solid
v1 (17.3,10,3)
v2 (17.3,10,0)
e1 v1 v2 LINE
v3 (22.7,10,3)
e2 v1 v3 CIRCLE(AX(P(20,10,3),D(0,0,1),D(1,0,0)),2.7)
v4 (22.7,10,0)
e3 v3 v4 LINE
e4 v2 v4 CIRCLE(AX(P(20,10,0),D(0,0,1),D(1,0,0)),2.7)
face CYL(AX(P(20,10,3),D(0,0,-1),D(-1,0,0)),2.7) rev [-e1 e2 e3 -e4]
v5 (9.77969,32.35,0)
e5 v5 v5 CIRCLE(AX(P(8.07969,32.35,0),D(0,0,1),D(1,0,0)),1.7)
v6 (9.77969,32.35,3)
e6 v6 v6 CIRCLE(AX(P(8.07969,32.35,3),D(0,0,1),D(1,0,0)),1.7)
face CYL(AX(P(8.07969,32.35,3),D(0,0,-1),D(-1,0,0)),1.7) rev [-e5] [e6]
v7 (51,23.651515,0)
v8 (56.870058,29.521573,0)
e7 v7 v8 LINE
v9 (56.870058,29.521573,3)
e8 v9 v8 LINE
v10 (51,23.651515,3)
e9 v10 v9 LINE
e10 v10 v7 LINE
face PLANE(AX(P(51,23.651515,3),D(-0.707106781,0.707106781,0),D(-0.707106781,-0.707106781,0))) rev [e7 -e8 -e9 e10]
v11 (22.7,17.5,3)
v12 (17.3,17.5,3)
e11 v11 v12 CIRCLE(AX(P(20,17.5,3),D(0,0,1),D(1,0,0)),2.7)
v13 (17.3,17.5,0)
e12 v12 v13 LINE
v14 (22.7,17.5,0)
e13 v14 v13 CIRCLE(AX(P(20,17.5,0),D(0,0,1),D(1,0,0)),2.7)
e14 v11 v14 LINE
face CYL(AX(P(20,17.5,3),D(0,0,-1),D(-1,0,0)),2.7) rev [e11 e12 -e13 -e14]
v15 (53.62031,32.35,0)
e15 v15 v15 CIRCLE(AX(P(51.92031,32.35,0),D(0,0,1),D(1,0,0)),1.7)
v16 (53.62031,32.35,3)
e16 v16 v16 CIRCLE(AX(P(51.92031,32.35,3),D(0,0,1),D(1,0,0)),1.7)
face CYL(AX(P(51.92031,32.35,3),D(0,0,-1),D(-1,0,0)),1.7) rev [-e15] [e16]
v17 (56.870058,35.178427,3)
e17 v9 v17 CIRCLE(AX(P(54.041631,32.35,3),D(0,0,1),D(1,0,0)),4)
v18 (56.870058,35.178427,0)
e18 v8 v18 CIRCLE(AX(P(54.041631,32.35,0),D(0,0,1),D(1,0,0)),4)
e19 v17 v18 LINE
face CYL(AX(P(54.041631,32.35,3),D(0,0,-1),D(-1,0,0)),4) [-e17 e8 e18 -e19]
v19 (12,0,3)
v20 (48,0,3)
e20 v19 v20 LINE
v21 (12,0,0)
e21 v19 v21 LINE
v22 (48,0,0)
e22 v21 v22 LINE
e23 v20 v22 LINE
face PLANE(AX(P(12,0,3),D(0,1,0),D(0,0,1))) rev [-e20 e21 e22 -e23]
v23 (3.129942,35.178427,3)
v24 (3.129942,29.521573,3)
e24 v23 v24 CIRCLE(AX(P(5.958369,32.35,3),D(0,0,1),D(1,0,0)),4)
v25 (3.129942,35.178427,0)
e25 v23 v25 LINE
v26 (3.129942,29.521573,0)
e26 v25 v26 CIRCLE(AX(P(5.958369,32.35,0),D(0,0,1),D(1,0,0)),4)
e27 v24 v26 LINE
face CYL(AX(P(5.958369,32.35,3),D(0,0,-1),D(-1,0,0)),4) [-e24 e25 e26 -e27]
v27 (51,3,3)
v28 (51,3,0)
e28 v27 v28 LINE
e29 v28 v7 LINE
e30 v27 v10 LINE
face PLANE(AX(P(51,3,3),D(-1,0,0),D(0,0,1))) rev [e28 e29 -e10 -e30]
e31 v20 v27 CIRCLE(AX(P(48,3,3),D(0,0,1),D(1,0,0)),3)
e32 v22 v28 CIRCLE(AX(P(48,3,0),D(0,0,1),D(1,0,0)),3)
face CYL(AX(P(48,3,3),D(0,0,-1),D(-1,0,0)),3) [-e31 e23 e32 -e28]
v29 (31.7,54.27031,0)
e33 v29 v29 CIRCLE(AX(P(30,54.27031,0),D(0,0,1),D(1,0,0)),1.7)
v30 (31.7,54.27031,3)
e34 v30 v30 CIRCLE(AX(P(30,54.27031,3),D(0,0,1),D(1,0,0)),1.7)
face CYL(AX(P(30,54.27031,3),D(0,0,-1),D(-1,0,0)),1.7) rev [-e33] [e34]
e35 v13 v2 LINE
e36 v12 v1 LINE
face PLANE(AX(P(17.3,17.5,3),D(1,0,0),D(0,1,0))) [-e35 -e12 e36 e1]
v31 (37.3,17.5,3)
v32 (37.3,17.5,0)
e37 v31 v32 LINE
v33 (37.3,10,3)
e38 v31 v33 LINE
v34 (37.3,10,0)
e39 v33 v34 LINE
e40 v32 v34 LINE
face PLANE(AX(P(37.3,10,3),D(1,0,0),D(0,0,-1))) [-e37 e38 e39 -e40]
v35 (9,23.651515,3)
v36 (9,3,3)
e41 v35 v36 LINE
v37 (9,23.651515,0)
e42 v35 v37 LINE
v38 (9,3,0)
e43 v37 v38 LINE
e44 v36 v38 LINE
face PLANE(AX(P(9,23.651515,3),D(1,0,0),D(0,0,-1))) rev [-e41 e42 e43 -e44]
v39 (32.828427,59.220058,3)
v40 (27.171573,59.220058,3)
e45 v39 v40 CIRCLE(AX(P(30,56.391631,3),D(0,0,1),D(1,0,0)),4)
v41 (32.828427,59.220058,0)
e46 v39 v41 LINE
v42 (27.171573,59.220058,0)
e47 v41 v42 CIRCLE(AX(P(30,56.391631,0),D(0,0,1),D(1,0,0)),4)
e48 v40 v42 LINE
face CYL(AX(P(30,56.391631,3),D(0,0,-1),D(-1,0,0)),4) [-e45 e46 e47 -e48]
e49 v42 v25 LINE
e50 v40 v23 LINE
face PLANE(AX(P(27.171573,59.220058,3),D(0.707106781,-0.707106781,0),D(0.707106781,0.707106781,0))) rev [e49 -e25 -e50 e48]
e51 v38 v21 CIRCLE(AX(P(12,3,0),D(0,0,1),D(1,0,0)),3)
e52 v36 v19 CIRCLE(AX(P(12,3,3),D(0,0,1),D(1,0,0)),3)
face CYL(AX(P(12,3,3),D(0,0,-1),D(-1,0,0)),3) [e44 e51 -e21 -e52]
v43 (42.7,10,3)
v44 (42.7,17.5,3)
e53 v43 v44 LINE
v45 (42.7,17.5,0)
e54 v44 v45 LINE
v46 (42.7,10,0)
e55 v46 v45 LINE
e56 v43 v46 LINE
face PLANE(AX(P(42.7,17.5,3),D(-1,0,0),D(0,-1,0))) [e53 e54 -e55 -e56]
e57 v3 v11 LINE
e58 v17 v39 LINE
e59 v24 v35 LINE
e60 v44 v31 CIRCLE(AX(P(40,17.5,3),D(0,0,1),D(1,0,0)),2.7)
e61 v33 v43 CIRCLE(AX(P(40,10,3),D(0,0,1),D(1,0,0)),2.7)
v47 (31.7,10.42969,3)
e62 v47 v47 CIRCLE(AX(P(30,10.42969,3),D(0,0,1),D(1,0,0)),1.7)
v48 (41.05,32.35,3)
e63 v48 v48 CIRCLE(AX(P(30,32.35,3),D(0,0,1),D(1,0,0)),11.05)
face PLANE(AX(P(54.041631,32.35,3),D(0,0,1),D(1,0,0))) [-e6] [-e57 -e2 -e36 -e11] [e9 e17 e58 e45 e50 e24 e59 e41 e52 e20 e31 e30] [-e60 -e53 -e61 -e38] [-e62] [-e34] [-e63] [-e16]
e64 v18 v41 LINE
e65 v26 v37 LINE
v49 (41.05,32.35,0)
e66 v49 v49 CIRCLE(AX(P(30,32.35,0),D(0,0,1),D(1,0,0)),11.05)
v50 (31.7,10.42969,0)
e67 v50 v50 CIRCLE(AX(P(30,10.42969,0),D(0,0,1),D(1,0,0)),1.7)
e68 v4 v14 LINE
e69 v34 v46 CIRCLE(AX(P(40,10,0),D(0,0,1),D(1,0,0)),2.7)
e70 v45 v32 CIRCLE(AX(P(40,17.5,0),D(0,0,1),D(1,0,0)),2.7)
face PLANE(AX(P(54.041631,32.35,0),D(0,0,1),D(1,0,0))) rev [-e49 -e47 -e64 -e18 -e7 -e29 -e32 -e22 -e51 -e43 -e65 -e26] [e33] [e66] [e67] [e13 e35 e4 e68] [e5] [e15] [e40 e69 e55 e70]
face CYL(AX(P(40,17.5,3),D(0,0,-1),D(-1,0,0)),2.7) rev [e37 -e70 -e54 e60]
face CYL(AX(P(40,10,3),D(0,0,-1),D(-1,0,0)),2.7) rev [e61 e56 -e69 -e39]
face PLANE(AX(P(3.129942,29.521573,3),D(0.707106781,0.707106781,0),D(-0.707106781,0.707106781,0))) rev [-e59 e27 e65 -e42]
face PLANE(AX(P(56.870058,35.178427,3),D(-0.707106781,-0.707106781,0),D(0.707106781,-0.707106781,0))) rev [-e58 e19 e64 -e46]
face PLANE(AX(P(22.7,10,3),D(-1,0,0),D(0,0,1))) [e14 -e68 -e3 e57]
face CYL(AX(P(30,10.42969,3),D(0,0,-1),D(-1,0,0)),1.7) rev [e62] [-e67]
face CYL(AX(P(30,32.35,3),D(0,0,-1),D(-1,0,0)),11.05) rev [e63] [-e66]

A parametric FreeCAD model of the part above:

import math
import FreeCAD as App
import Part
import Sketcher
from FreeCAD import Vector
Q = App.Units.Quantity

doc = App.newDocument("Part")
params = doc.addObject("Spreadsheet::Sheet", "Params")
for row, (alias, value) in enumerate([
    ("sketch1_radius", "4 mm"),
    ("sketch1_radius2", "3 mm"),
    ("sketch1_diameter", "3.4 mm"),
    ("sketch1_diameter2", "22.1 mm"),
    ("sketch1_radius3", "2.7 mm"),
    ("pad1_length", "3 mm"),
], start=1):
    params.set(f"A{row}", alias)
    params.set(f"B{row}", "=" + value)
    params.setAlias(f"B{row}", alias)

body = doc.addObject("PartDesign::Body", "Body")

sketch1 = body.newObject("Sketcher::SketchObject", "Sketch")
sketch1.AttachmentSupport = (doc.getObject("XY_Plane"), [""])
sketch1.MapMode = "FlatFace"
sketch1.addGeometry([
    Part.LineSegment(Vector(51, 3, 0), Vector(51, 23.7, 0)),
    Part.LineSegment(Vector(51, 23.7, 0), Vector(56.9, 29.5, 0)),
    Part.ArcOfCircle(Part.Circle(Vector(54, 32.4, 0), Vector(0, 0, 1), 4), math.radians(-45), math.radians(45)),
    Part.LineSegment(Vector(56.9, 35.2, 0), Vector(32.8, 59.2, 0)),
    Part.ArcOfCircle(Part.Circle(Vector(30, 56.4, 0), Vector(0, 0, 1), 4), math.radians(45), math.radians(135)),
    Part.LineSegment(Vector(27.2, 59.2, 0), Vector(3.1, 35.2, 0)),
    Part.ArcOfCircle(Part.Circle(Vector(6, 32.4, 0), Vector(0, 0, 1), 4), math.radians(135), math.radians(225)),
    Part.LineSegment(Vector(3.1, 29.5, 0), Vector(9, 23.7, 0)),
    Part.LineSegment(Vector(9, 23.7, 0), Vector(9, 3, 0)),
    Part.ArcOfCircle(Part.Circle(Vector(12, 3, 0), Vector(0, 0, 1), 3), math.radians(180), math.radians(270)),
    Part.LineSegment(Vector(12, 0, 0), Vector(48, 0, 0)),
    Part.ArcOfCircle(Part.Circle(Vector(48, 3, 0), Vector(0, 0, 1), 3), math.radians(-90), math.radians(0)),
    Part.Circle(Vector(30, 10.4, 0), Vector(0, 0, 1), 1.7),
    Part.LineSegment(Vector(22.7, 17.5, 0), Vector(22.7, 10, 0)),
    Part.ArcOfCircle(Part.Circle(Vector(20, 10, 0), Vector(0, 0, 1), 2.7), math.radians(180), math.radians(360)),
    Part.LineSegment(Vector(17.3, 10, 0), Vector(17.3, 17.5, 0)),
    Part.ArcOfCircle(Part.Circle(Vector(20, 17.5, 0), Vector(0, 0, 1), 2.7), math.radians(0), math.radians(180)),
    Part.ArcOfCircle(Part.Circle(Vector(40, 10, 0), Vector(0, 0, 1), 2.7), math.radians(180), math.radians(360)),
    Part.LineSegment(Vector(37.3, 10, 0), Vector(37.3, 17.5, 0)),
    Part.ArcOfCircle(Part.Circle(Vector(40, 17.5, 0), Vector(0, 0, 1), 2.7), math.radians(0), math.radians(180)),
    Part.LineSegment(Vector(42.7, 17.5, 0), Vector(42.7, 10, 0)),
    Part.Circle(Vector(8.1, 32.4, 0), Vector(0, 0, 1), 1.7),
    Part.Circle(Vector(30, 32.4, 0), Vector(0, 0, 1), 11.1),
    Part.Circle(Vector(30, 54.3, 0), Vector(0, 0, 1), 1.7),
    Part.Circle(Vector(51.9, 32.4, 0), Vector(0, 0, 1), 1.7),
], False)
sketch1.addConstraint([
    Sketcher.Constraint("Coincident", 0, 2, 1, 1),
    Sketcher.Constraint("Tangent", 1, 2, 2, 1),
    Sketcher.Constraint("Tangent", 2, 2, 3, 1),
    Sketcher.Constraint("Tangent", 3, 2, 4, 1),
    Sketcher.Constraint("Tangent", 4, 2, 5, 1),
    Sketcher.Constraint("Tangent", 5, 2, 6, 1),
    Sketcher.Constraint("Tangent", 6, 2, 7, 1),
    Sketcher.Constraint("Coincident", 7, 2, 8, 1),
    Sketcher.Constraint("Tangent", 8, 2, 9, 1),
    Sketcher.Constraint("Tangent", 9, 2, 10, 1),
    Sketcher.Constraint("Tangent", 10, 2, 11, 1),
    Sketcher.Constraint("Tangent", 11, 2, 0, 1),
    Sketcher.Constraint("Tangent", 13, 2, 14, 2),
    Sketcher.Constraint("Tangent", 14, 1, 15, 1),
    Sketcher.Constraint("Tangent", 15, 2, 16, 2),
    Sketcher.Constraint("Tangent", 16, 1, 13, 1),
    Sketcher.Constraint("Tangent", 17, 1, 18, 1),
    Sketcher.Constraint("Tangent", 18, 2, 19, 2),
    Sketcher.Constraint("Tangent", 19, 1, 20, 1),
    Sketcher.Constraint("Tangent", 20, 2, 17, 2),
    Sketcher.Constraint("Vertical", 0),
    Sketcher.Constraint("Vertical", 8),
    Sketcher.Constraint("Horizontal", 10),
    Sketcher.Constraint("Vertical", 13),
    Sketcher.Constraint("Vertical", 15),
    Sketcher.Constraint("Vertical", 18),
    Sketcher.Constraint("Vertical", 20),
    Sketcher.Constraint("Equal", 2, 4),
    Sketcher.Constraint("Equal", 4, 6),
    Sketcher.Constraint("Equal", 9, 11),
    Sketcher.Constraint("Equal", 16, 17),
    Sketcher.Constraint("Equal", 12, 21),
    Sketcher.Constraint("Equal", 21, 23),
    Sketcher.Constraint("Equal", 23, 24),
    Sketcher.Constraint("PointOnObject", 9, 2, -1),
    Sketcher.Constraint("Perpendicular", 1, 3),
    Sketcher.Constraint("Perpendicular", 3, 5),
    Sketcher.Constraint("Perpendicular", 5, 7),
    Sketcher.Constraint("Horizontal", 2, 3, 6, 3),
    Sketcher.Constraint("Horizontal", 14, 3, 17, 3),
    Sketcher.Constraint("Horizontal", 16, 3, 19, 3),
    Sketcher.Constraint("Horizontal", 6, 3, 21, 3),
    Sketcher.Constraint("Horizontal", 21, 3, 22, 3),
    Sketcher.Constraint("Horizontal", 22, 3, 24, 3),
    Sketcher.Constraint("Horizontal", 3, 2, 4, 2),
    Sketcher.Constraint("Horizontal", 0, 2, 7, 2),
    Sketcher.Constraint("Vertical", 4, 3, 12, 3),
    Sketcher.Constraint("Vertical", 12, 3, 22, 3),
    Sketcher.Constraint("Vertical", 22, 3, 23, 3),
    Sketcher.Constraint("Radius", 2, Q("4 mm")),
    Sketcher.Constraint("Radius", 9, Q("3 mm")),
    Sketcher.Constraint("Diameter", 12, Q("3.4 mm")),
    Sketcher.Constraint("Diameter", 22, Q("22.1 mm")),
    Sketcher.Constraint("Radius", 14, Q("2.7 mm")),
    Sketcher.Constraint("DistanceX", 10, 1, 10, 2, Q("36 mm")),
    Sketcher.Constraint("Distance", 3, Q("34 mm")),
    Sketcher.Constraint("DistanceY", 13, 2, 13, 1, Q("7.5 mm")),
    Sketcher.Constraint("DistanceX", -1, 1, 4, 3, Q("30 mm")),
    Sketcher.Constraint("DistanceX", -1, 1, 14, 3, Q("20 mm")),
    Sketcher.Constraint("DistanceY", -1, 1, 14, 3, Q("10 mm")),
    Sketcher.Constraint("DistanceX", -1, 1, 17, 3, Q("40 mm")),
    Sketcher.Constraint("DistanceY", -1, 1, 2, 3, Q("32.35 mm")),
    Sketcher.Constraint("DistanceY", -1, 1, 12, 3, Q("10.42969 mm")),
    Sketcher.Constraint("DistanceX", -1, 1, 21, 3, Q("8.07969 mm")),
    Sketcher.Constraint("DistanceY", -1, 1, 23, 3, Q("54.27031 mm")),
    Sketcher.Constraint("DistanceX", -1, 1, 24, 3, Q("51.92031 mm")),
])
sketch1.setExpression("Constraints[49]", "Params.sketch1_radius")
sketch1.setExpression("Constraints[50]", "Params.sketch1_radius2")
sketch1.setExpression("Constraints[51]", "Params.sketch1_diameter")
sketch1.setExpression("Constraints[52]", "Params.sketch1_diameter2")
sketch1.setExpression("Constraints[53]", "Params.sketch1_radius3")
pad1 = body.newObject("PartDesign::Pad", "Pad")
pad1.Profile = sketch1
pad1.setExpression("Length", "Params.pad1_length")

doc.recompute()
